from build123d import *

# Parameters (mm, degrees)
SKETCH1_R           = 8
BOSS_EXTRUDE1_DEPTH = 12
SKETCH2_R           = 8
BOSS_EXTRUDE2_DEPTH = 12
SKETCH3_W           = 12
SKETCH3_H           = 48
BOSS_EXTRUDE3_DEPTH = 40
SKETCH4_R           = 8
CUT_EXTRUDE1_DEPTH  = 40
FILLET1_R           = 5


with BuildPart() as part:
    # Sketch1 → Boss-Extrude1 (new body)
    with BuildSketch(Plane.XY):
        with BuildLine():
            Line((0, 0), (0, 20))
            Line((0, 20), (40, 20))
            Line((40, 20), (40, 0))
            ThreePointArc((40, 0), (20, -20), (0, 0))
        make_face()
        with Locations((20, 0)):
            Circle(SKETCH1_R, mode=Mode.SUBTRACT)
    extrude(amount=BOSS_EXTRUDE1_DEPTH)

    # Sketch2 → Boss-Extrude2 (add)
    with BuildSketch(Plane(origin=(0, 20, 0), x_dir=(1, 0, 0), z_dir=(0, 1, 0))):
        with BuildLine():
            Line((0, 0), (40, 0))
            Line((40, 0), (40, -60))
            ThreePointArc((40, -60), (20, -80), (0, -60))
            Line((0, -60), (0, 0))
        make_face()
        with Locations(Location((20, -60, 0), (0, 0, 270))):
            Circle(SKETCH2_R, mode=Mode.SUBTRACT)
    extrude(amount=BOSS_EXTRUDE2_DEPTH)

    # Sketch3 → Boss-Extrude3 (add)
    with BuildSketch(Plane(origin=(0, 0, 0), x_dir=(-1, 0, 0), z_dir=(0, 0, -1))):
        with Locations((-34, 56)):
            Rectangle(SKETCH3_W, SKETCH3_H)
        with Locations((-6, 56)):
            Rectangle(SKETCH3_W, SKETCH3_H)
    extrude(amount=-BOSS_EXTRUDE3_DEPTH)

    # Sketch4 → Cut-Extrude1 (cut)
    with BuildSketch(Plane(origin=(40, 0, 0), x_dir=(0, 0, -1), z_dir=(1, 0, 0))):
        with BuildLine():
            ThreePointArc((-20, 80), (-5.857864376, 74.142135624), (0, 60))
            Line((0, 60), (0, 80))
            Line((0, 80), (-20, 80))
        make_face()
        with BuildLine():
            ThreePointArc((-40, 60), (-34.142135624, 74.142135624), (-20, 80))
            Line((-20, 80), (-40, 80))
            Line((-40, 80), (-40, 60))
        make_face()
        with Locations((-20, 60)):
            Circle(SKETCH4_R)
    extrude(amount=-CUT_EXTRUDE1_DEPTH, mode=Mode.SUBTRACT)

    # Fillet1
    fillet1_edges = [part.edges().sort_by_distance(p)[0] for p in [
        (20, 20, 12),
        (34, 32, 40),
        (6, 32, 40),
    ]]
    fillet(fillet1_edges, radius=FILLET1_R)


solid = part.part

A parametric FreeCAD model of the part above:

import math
import FreeCAD as App
import Part
import Sketcher
from FreeCAD import Vector


def edges_at(feature, points):
    """Names of the edges that pass closest to the given points."""
    edges = feature.Shape.Edges
    near = lambda p: min(range(len(edges)), key=lambda i: edges[i].distToShape(Part.Vertex(*p))[0])
    return sorted({f"Edge{near(p) + 1}" for p in points})

doc = App.newDocument("Part")
body = doc.addObject("PartDesign::Body", "Body")

# Sketch on XY plane
sketch1 = body.newObject("Sketcher::SketchObject", "Sketch")
sketch1.AttachmentSupport = (doc.getObject("XY_Plane"), [""])
sketch1.MapMode = "FlatFace"
sketch1.addGeometry([
    Part.LineSegment(Vector(0, 20, 0), Vector(0, 0, 0)),  # 0
    Part.ArcOfCircle(Part.Circle(Vector(20, 0, 0), Vector(0, 0, 1), 20), math.radians(180), math.radians(360)),  # 1
    Part.LineSegment(Vector(40, 0, 0), Vector(40, 20, 0)),  # 2
    Part.LineSegment(Vector(40, 20, 0), Vector(0, 20, 0)),  # 3
    Part.Circle(Vector(20, 0, 0), Vector(0, 0, 1), 8),  # 4
], False)
sketch1.addConstraint([
    Sketcher.Constraint("Tangent", 0, 2, 1, 1),
    Sketcher.Constraint("Tangent", 1, 2, 2, 1),
    Sketcher.Constraint("Coincident", 2, 2, 3, 1),
    Sketcher.Constraint("Coincident", 3, 2, 0, 1),
    Sketcher.Constraint("Vertical", 0),
    Sketcher.Constraint("Vertical", 2),
    Sketcher.Constraint("Horizontal", 3),
    Sketcher.Constraint("Coincident", 0, 2, -1, 1),
    Sketcher.Constraint("Coincident", 4, 3, 1, 3),
    Sketcher.Constraint("Diameter", 4, 16.0),
    Sketcher.Constraint("Radius", 1, 20.0),
    Sketcher.Constraint("DistanceY", 0, 2, 0, 1, 20.0),
])
pad1 = body.newObject("PartDesign::Pad", "Pad")
pad1.Profile = sketch1
pad1.Length = 12

# Sketch on XZ plane
sketch2 = body.newObject("Sketcher::SketchObject", "Sketch001")
sketch2.AttachmentSupport = (doc.getObject("XZ_Plane"), [""])
sketch2.MapMode = "FlatFace"
sketch2.AttachmentOffset = App.Placement(Vector(0, 0, -20), App.Rotation())
sketch2.addGeometry([
    Part.LineSegment(Vector(40, 0, 0), Vector(0, 0, 0)),  # 0
    Part.LineSegment(Vector(0, 0, 0), Vector(0, 60, 0)),  # 1
    Part.ArcOfCircle(Part.Circle(Vector(20, 60, 0), Vector(0, 0, 1), 20), math.radians(0), math.radians(180)),  # 2
    Part.LineSegment(Vector(40, 60, 0), Vector(40, 0, 0)),  # 3
    Part.Circle(Vector(20, 60, 0), Vector(0, 0, 1), 8),  # 4
], False)
sketch2.addConstraint([
    Sketcher.Constraint("Coincident", 0, 2, 1, 1),
    Sketcher.Constraint("Tangent", 1, 2, 2, 2),
    Sketcher.Constraint("Tangent", 2, 1, 3, 1),
    Sketcher.Constraint("Coincident", 3, 2, 0, 1),
    Sketcher.Constraint("Horizontal", 0),
    Sketcher.Constraint("Vertical", 1),
    Sketcher.Constraint("Vertical", 3),
    Sketcher.Constraint("Coincident", 0, 2, -1, 1),
    Sketcher.Constraint("Coincident", 4, 3, 2, 3),
    Sketcher.Constraint("Diameter", 4, 16.0),
    Sketcher.Constraint("Radius", 2, 20.0),
    Sketcher.Constraint("DistanceY", 1, 1, 1, 2, 60.0),
])
pad2 = body.newObject("PartDesign::Pad", "Pad001")
pad2.Profile = sketch2
pad2.Length = 12
pad2.Reversed = True

# Sketch on XY plane
sketch3 = body.newObject("Sketcher::SketchObject", "Sketch002")
sketch3.AttachmentSupport = (doc.getObject("XY_Plane"), [""])
sketch3.MapMode = "FlatFace"
sketch3.addGeometry([
    Part.LineSegment(Vector(40, 80, 0), Vector(40, 32, 0)),  # 0
    Part.LineSegment(Vector(40, 32, 0), Vector(28, 32, 0)),  # 1
    Part.LineSegment(Vector(28, 32, 0), Vector(28, 80, 0)),  # 2
    Part.LineSegment(Vector(28, 80, 0), Vector(40, 80, 0)),  # 3
    Part.LineSegment(Vector(12, 80, 0), Vector(12, 32, 0)),  # 4
    Part.LineSegment(Vector(12, 32, 0), Vector(0, 32, 0)),  # 5
    Part.LineSegment(Vector(0, 32, 0), Vector(0, 80, 0)),  # 6
    Part.LineSegment(Vector(0, 80, 0), Vector(12, 80, 0)),  # 7
], False)
sketch3.addConstraint([
    Sketcher.Constraint("Coincident", 0, 2, 1, 1),
    Sketcher.Constraint("Coincident", 1, 2, 2, 1),
    Sketcher.Constraint("Coincident", 2, 2, 3, 1),
    Sketcher.Constraint("Coincident", 3, 2, 0, 1),
    Sketcher.Constraint("Coincident", 4, 2, 5, 1),
    Sketcher.Constraint("Coincident", 5, 2, 6, 1),
    Sketcher.Constraint("Coincident", 6, 2, 7, 1),
    Sketcher.Constraint("Coincident", 7, 2, 4, 1),
    Sketcher.Constraint("Vertical", 0),
    Sketcher.Constraint("Horizontal", 1),
    Sketcher.Constraint("Vertical", 2),
    Sketcher.Constraint("Horizontal", 3),
    Sketcher.Constraint("Vertical", 4),
    Sketcher.Constraint("Horizontal", 5),
    Sketcher.Constraint("Vertical", 6),
    Sketcher.Constraint("Horizontal", 7),
    Sketcher.Constraint("PointOnObject", 5, 2, -2),
    Sketcher.Constraint("Horizontal", 1, 2, 4, 2),
    Sketcher.Constraint("Horizontal", 3, 2, 6, 2),
    Sketcher.Constraint("Equal", 3, 5),
    Sketcher.Constraint("DistanceX", 1, 2, 1, 1, 12.0),
    Sketcher.Constraint("DistanceY", 0, 2, 0, 1, 48.0),
    Sketcher.Constraint("DistanceX", -1, 1, 0, 2, 40.0),
    Sketcher.Constraint("DistanceY", -1, 1, 0, 2, 32.0),
])
pad3 = body.newObject("PartDesign::Pad", "Pad002")
pad3.Profile = sketch3
pad3.Length = 40

# Sketch on YZ plane
sketch4 = body.newObject("Sketcher::SketchObject", "Sketch003")
sketch4.AttachmentSupport = (doc.getObject("YZ_Plane"), [""])
sketch4.MapMode = "FlatFace"
sketch4.AttachmentOffset = App.Placement(Vector(0, 0, 40), App.Rotation())
sketch4.addGeometry([
    Part.ArcOfCircle(Part.Circle(Vector(60, 20, 0), Vector(0, 0, 1), 20), math.radians(-90), math.radians(0)),  # 0
    Part.LineSegment(Vector(60, 0, 0), Vector(80, 0, 0)),  # 1
    Part.LineSegment(Vector(80, 0, 0), Vector(80, 20, 0)),  # 2
    Part.ArcOfCircle(Part.Circle(Vector(60, 20, 0), Vector(0, 0, 1), 20), math.radians(0), math.radians(90)),  # 3
    Part.LineSegment(Vector(80, 20, 0), Vector(80, 40, 0)),  # 4
    Part.LineSegment(Vector(80, 40, 0), Vector(60, 40, 0)),  # 5
    Part.Circle(Vector(60, 20, 0), Vector(0, 0, 1), 8),  # 6
], False)
sketch4.addConstraint([
    Sketcher.Constraint("Tangent", 0, 1, 1, 1),
    Sketcher.Constraint("Coincident", 1, 2, 2, 1),
    Sketcher.Constraint("Tangent", 2, 2, 0, 2),
    Sketcher.Constraint("Tangent", 3, 1, 4, 1),
    Sketcher.Constraint("Coincident", 4, 2, 5, 1),
    Sketcher.Constraint("Tangent", 5, 2, 3, 2),
    Sketcher.Constraint("Horizontal", 1),
    Sketcher.Constraint("Vertical", 2),
    Sketcher.Constraint("Vertical", 4),
    Sketcher.Constraint("Horizontal", 5),
    Sketcher.Constraint("Coincident", 3, 3, 0, 3),
    Sketcher.Constraint("Coincident", 6, 3, 0, 3),
    Sketcher.Constraint("Equal", 0, 3),
    Sketcher.Constraint("PointOnObject", 0, 1, -1),
    Sketcher.Constraint("Diameter", 6, 16.0),
    Sketcher.Constraint("Radius", 0, 20.0),
    Sketcher.Constraint("DistanceX", -1, 1, 0, 3, 60.0),
])
pocket1 = body.newObject("PartDesign::Pocket", "Pocket")
pocket1.Profile = sketch4
pocket1.Length = 40
doc.recompute()

fillet = body.newObject("PartDesign::Fillet", "Fillet")
fillet.Base = (pocket1, edges_at(pocket1, [(20, 20, 12), (34, 32, 40), (6, 32, 40)]))
fillet.Radius = 5

doc.recompute()
